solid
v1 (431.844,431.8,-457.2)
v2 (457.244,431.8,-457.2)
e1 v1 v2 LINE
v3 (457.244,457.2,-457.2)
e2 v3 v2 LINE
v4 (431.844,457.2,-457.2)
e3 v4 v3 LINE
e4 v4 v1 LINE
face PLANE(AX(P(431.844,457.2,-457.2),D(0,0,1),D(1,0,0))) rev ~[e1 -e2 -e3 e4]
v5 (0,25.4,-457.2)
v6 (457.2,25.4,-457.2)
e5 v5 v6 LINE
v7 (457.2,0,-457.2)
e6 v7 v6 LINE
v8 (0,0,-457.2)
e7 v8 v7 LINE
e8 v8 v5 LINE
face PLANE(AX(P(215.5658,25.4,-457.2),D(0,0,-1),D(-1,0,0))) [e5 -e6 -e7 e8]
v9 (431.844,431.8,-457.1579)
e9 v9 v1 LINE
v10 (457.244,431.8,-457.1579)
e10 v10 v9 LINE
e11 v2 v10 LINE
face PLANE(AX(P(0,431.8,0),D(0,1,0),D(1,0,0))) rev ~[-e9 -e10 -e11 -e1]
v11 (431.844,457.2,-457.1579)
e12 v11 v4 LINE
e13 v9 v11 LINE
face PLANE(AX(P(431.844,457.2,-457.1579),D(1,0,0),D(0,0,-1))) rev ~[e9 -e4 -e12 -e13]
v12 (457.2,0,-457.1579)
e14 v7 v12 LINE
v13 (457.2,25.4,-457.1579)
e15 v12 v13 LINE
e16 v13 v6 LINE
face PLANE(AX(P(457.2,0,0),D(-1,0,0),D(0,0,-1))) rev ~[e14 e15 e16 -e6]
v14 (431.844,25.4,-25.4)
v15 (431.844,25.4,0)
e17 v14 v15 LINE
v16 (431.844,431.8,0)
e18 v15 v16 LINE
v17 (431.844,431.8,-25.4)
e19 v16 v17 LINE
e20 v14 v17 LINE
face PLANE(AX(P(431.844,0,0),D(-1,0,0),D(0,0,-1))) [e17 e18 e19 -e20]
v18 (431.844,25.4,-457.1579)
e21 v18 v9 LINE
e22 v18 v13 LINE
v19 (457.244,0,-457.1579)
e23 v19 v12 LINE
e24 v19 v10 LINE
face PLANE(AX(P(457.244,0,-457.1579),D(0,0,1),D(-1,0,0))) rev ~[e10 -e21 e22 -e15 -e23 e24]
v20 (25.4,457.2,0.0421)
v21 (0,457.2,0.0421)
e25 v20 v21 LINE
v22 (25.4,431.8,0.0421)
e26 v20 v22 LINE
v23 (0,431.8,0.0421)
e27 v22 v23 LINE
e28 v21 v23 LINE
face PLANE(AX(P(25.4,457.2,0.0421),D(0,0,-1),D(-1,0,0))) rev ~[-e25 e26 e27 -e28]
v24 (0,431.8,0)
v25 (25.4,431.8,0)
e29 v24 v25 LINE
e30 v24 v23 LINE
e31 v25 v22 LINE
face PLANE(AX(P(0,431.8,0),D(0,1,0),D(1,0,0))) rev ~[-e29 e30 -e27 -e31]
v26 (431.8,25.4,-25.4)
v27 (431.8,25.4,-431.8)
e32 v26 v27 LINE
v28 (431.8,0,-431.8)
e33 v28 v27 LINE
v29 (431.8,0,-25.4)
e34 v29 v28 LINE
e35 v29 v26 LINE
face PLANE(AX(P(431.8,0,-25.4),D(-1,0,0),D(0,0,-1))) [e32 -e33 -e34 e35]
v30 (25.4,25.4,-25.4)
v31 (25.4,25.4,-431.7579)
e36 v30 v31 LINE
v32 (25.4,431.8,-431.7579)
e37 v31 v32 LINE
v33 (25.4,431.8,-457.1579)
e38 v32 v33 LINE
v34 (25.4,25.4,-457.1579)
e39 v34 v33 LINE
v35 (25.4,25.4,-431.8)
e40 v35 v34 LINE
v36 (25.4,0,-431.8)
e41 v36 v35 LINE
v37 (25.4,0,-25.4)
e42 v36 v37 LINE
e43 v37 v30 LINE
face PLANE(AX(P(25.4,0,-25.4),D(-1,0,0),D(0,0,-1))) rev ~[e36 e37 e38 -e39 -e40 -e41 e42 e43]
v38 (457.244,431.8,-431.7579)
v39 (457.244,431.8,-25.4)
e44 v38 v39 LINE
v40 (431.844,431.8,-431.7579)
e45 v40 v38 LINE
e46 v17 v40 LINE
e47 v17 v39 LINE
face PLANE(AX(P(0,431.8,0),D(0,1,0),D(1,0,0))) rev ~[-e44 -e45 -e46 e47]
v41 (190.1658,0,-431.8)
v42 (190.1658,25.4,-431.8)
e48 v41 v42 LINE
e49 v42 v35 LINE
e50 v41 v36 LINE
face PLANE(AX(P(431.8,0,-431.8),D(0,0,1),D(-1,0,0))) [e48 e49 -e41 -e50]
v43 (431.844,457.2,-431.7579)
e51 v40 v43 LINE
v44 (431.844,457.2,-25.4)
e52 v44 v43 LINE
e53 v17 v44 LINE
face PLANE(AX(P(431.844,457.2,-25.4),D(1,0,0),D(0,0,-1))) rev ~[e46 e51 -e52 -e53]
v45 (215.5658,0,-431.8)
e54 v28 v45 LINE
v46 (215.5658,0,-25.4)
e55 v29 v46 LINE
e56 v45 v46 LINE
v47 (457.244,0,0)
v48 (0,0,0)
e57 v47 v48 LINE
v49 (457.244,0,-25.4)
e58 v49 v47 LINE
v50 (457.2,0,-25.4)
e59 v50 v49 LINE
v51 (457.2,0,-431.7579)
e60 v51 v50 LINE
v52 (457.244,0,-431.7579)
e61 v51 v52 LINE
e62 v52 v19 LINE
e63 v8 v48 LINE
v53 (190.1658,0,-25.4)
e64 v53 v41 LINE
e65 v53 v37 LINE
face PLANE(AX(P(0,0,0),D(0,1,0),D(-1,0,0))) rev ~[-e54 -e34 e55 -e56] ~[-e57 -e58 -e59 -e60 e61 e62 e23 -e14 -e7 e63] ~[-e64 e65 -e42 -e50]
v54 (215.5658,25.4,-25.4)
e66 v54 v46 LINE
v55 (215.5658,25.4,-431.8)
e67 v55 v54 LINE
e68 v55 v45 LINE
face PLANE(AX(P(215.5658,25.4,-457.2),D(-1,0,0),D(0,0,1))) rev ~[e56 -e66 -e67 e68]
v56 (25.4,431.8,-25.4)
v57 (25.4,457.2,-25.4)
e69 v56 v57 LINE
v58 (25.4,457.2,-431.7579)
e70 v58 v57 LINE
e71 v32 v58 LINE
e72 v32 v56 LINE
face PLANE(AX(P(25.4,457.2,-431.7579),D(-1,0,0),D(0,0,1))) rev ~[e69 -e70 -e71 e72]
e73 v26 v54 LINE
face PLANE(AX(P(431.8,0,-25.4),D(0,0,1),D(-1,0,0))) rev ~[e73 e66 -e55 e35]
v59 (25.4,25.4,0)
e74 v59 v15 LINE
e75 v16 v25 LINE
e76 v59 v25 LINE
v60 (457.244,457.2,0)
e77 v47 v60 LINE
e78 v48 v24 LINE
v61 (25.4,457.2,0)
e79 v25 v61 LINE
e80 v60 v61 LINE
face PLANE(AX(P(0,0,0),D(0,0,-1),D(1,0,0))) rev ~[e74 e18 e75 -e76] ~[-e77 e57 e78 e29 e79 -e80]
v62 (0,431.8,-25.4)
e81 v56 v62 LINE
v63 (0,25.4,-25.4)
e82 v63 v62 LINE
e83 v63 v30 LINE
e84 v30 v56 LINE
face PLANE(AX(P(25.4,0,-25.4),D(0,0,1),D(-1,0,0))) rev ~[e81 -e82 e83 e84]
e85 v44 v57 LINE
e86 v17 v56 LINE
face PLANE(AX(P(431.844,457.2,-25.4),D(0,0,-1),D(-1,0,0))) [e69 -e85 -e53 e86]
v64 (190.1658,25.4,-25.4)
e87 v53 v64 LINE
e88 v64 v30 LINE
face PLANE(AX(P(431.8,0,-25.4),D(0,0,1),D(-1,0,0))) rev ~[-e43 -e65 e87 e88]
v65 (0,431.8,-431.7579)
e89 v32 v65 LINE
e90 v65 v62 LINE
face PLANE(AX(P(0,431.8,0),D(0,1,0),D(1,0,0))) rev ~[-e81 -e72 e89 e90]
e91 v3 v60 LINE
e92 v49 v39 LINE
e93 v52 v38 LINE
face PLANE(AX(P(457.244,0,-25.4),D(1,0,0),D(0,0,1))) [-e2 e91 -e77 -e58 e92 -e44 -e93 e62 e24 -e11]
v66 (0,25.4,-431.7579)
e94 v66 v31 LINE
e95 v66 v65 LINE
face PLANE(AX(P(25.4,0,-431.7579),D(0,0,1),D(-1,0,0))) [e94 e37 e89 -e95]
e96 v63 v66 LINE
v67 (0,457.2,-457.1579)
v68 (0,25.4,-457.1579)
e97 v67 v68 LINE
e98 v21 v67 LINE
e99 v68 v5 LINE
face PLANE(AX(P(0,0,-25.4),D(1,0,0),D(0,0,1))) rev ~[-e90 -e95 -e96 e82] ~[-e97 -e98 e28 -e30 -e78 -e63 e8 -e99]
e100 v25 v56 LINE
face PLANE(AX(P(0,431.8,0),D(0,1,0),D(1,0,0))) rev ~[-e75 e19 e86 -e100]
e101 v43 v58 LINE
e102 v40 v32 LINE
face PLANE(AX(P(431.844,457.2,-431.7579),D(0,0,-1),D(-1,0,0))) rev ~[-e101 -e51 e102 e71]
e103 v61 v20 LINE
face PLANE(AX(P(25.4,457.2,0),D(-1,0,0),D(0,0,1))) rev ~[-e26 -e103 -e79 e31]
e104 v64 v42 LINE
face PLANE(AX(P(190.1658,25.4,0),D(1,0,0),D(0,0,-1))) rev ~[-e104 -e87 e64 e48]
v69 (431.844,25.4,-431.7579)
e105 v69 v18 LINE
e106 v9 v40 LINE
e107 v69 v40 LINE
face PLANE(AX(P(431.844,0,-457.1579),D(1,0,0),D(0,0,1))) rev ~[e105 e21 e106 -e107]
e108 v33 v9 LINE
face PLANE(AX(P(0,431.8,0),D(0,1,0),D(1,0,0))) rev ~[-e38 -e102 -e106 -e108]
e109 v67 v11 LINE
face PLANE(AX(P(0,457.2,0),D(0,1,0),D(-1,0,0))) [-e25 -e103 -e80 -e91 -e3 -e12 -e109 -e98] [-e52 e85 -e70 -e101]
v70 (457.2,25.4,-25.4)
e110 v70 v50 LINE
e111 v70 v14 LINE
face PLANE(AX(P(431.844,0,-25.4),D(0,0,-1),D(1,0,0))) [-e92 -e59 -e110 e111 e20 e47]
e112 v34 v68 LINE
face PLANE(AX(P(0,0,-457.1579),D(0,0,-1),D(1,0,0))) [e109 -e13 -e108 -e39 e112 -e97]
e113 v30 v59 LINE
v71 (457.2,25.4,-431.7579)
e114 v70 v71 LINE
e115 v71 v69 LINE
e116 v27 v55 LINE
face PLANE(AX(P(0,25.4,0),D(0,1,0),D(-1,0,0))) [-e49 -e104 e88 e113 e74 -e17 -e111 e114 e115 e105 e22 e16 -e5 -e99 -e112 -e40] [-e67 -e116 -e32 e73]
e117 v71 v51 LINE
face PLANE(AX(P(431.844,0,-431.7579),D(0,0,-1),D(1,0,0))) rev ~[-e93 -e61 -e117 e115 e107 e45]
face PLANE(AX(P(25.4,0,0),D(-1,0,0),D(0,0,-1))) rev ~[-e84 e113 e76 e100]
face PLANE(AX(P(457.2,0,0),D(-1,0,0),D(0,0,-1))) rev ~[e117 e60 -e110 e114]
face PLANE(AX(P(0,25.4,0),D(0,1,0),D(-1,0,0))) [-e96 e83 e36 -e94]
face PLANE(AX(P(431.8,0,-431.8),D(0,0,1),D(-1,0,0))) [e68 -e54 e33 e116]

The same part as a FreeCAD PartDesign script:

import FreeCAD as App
import Part
import Sketcher
Q = App.Units.Quantity


def add_polygon(sketch, points):
    """Adds a closed chain of lines whose ends are joined by coincident constraints."""
    first, n = sketch.GeometryCount, len(points)
    for a, b in zip(points, points[1:] + points[:1]):
        sketch.addGeometry(Part.LineSegment(App.Vector(*a, 0), App.Vector(*b, 0)), False)
    for i in range(n):
        sketch.addConstraint(Sketcher.Constraint("Coincident", first + i, 2, first + (i + 1) % n, 1))

doc = App.newDocument("Part")
body = doc.addObject("PartDesign::Body", "Body")

# Sketch on XZ plane
sketch1 = doc.addObject("Sketcher::SketchObject", "Sketch")
body.addObject(sketch1)
sketch1.AttachmentSupport = (doc.XZ_Plane, [""])
sketch1.MapMode = "FlatFace"
add_polygon(sketch1, [(0, 0), (457, 0), (457, -457), (0, -457)])  # lines 0-3
add_polygon(sketch1, [(25, -25), (25, -432), (432, -432), (432, -25)])  # lines 4-7
sketch1.addConstraint([
    Sketcher.Constraint("Horizontal", 0),
    Sketcher.Constraint("Vertical", 1),
    Sketcher.Constraint("Horizontal", 2),
    Sketcher.Constraint("Vertical", 3),
    Sketcher.Constraint("Vertical", 4),
    Sketcher.Constraint("Horizontal", 5),
    Sketcher.Constraint("Vertical", 6),
    Sketcher.Constraint("Horizontal", 7),
    Sketcher.Constraint("Coincident", 3, 2, -1, 1),
    Sketcher.Constraint("Equal", 2, 1),
    Sketcher.Constraint("Equal", 7, 4),
    Sketcher.Constraint("DistanceX", 0, 1, 0, 2, Q("18 in")),
    Sketcher.Constraint("DistanceX", -1, 1, 4, 2, Q("1 in")),
    Sketcher.Constraint("DistanceY", 6, 2, -1, 1, Q("1 in")),
    Sketcher.Constraint("DistanceY", 2, 2, 4, 2, Q("1 in")),
])
pad1 = doc.addObject("PartDesign::Pad", "Pad")
body.addObject(pad1)
pad1.Profile = sketch1
pad1.Length = Q("1 in")
pad1.Reversed = True

# Sketch on XZ plane
sketch2 = doc.addObject("Sketcher::SketchObject", "Sketch001")
body.addObject(sketch2)
sketch2.AttachmentSupport = (doc.XZ_Plane, [""])
sketch2.MapMode = "FlatFace"
add_polygon(sketch2, [(0, -25), (0, 0), (25, 0), (25, -25)])  # lines 0-3
add_polygon(sketch2, [(25, -457), (0, -457), (0, -432), (25, -432)])  # lines 4-7
add_polygon(sketch2, [(457, -432), (457, -457), (432, -457), (432, -432)])  # lines 8-11
add_polygon(sketch2, [(432, 0), (457, 0), (457, -25), (432, -25)])  # lines 12-15
sketch2.addConstraint([
    Sketcher.Constraint("Vertical", 0),
    Sketcher.Constraint("Horizontal", 1),
    Sketcher.Constraint("Vertical", 2),
    Sketcher.Constraint("Horizontal", 3),
    Sketcher.Constraint("Horizontal", 4),
    Sketcher.Constraint("Vertical", 5),
    Sketcher.Constraint("Horizontal", 6),
    Sketcher.Constraint("Vertical", 7),
    Sketcher.Constraint("Vertical", 8),
    Sketcher.Constraint("Horizontal", 9),
    Sketcher.Constraint("Vertical", 10),
    Sketcher.Constraint("Horizontal", 11),
    Sketcher.Constraint("Horizontal", 12),
    Sketcher.Constraint("Vertical", 13),
    Sketcher.Constraint("Horizontal", 14),
    Sketcher.Constraint("Vertical", 15),
    Sketcher.Constraint("Coincident", 0, 2, -1, 1),
    Sketcher.Constraint("PointOnObject", 4, 2, -2),
    Sketcher.Constraint("PointOnObject", 12, 2, -1),
    Sketcher.Constraint("Horizontal", 7, 2, 8, 2),
    Sketcher.Constraint("Horizontal", 6, 2, 10, 2),
    Sketcher.Constraint("Horizontal", 3, 2, 13, 2),
    Sketcher.Constraint("Vertical", 2, 2, 6, 2),
    Sketcher.Constraint("Vertical", 11, 2, 12, 2),
    Sketcher.Constraint("Vertical", 10, 2, 14, 2),
    Sketcher.Constraint("Equal", 6, 9),
    Sketcher.Constraint("Equal", 14, 0),
    Sketcher.Constraint("Equal", 2, 5),
    Sketcher.Constraint("DistanceX", 1, 1, 1, 2, Q("1 in")),
    Sketcher.Constraint("DistanceY", 4, 2, -1, 1, Q("457.158 mm")),
    Sketcher.Constraint("DistanceX", -1, 1, 8, 2, Q("457.244 mm")),
])
pad2 = doc.addObject("PartDesign::Pad", "Pad001")
body.addObject(pad2)
pad2.Profile = sketch2
pad2.Length = Q("18 in")
pad2.Reversed = True

# Sketch on XZ plane
sketch3 = doc.addObject("Sketcher::SketchObject", "Sketch002")
body.addObject(sketch3)
sketch3.AttachmentSupport = (doc.XZ_Plane, [""])
sketch3.MapMode = "FlatFace"
sketch3.AttachmentOffset = App.Placement(App.Vector(0, 0, -18 * 25.4), App.Rotation())
add_polygon(sketch3, [(0, 0.042), (25.4, 0.042), (25.4, 0), (457.244, 0), (457.244, -457.2), (431.844, -457.2), (431.844, -457.158), (0, -457.158)])  # lines 0-7
add_polygon(sketch3, [(25.4, -25.4), (25.4, -431.758), (431.844, -431.758), (431.844, -25.4)])  # lines 8-11
sketch3.addConstraint([
    Sketcher.Constraint("Horizontal", 0),
    Sketcher.Constraint("Vertical", 1),
    Sketcher.Constraint("Horizontal", 2),
    Sketcher.Constraint("Vertical", 3),
    Sketcher.Constraint("Horizontal", 4),
    Sketcher.Constraint("Vertical", 5),
    Sketcher.Constraint("Horizontal", 6),
    Sketcher.Constraint("Vertical", 7),
    Sketcher.Constraint("Vertical", 8),
    Sketcher.Constraint("Horizontal", 9),
    Sketcher.Constraint("Vertical", 10),
    Sketcher.Constraint("Horizontal", 11),
    Sketcher.Constraint("PointOnObject", 1, 2, -1),
    Sketcher.Constraint("PointOnObject", 6, 2, -2),
    Sketcher.Constraint("Vertical", 1, 2, 8, 2),
    Sketcher.Constraint("Vertical", 5, 2, 9, 2),
    Sketcher.Constraint("Equal", 0, 4),
    Sketcher.Constraint("Equal", 1, 5),
    Sketcher.Constraint("DistanceX", 0, 1, 0, 2, Q("1 in")),
    Sketcher.Constraint("DistanceY", 3, 2, 3, 1, Q("18 in")),
    Sketcher.Constraint("DistanceY", 10, 2, -1, 1, Q("1 in")),
    Sketcher.Constraint("DistanceY", 6, 2, 8, 2, Q("1 in")),
    Sketcher.Constraint("DistanceX", 2, 1, 2, 2, Q("431.844 mm")),
    Sketcher.Constraint("DistanceY", 1, 2, 1, 1, Q("0.042 mm")),
])
pad3 = doc.addObject("PartDesign::Pad", "Pad002")
body.addObject(pad3)
pad3.Profile = sketch3
pad3.Length = Q("1 in")

# Sketch on XZ plane
sketch4 = doc.addObject("Sketcher::SketchObject", "Sketch003")
body.addObject(sketch4)
sketch4.AttachmentSupport = (doc.XZ_Plane, [""])
sketch4.MapMode = "FlatFace"
sketch4.AttachmentOffset = App.Placement(App.Vector(0, 0, -1 * 25.4), App.Rotation())
add_polygon(sketch4, [(216, 0), (216, -457), (190, -457), (190, 0)])  # lines 0-3
sketch4.addConstraint([
    Sketcher.Constraint("Vertical", 0),
    Sketcher.Constraint("Horizontal", 1),
    Sketcher.Constraint("Vertical", 2),
    Sketcher.Constraint("Horizontal", 3),
    Sketcher.Constraint("PointOnObject", 2, 2, -1),
    Sketcher.Constraint("DistanceX", 1, 2, 1, 1, Q("1 in")),
    Sketcher.Constraint("DistanceY", 0, 2, 0, 1, Q("18 in")),
    Sketcher.Constraint("DistanceX", -1, 1, 0, 2, Q("215.5658 mm")),
])
pad4 = doc.addObject("PartDesign::Pad", "Pad003")
body.addObject(pad4)
pad4.Profile = sketch4
pad4.Length = Q("1 in")

doc.recompute()
